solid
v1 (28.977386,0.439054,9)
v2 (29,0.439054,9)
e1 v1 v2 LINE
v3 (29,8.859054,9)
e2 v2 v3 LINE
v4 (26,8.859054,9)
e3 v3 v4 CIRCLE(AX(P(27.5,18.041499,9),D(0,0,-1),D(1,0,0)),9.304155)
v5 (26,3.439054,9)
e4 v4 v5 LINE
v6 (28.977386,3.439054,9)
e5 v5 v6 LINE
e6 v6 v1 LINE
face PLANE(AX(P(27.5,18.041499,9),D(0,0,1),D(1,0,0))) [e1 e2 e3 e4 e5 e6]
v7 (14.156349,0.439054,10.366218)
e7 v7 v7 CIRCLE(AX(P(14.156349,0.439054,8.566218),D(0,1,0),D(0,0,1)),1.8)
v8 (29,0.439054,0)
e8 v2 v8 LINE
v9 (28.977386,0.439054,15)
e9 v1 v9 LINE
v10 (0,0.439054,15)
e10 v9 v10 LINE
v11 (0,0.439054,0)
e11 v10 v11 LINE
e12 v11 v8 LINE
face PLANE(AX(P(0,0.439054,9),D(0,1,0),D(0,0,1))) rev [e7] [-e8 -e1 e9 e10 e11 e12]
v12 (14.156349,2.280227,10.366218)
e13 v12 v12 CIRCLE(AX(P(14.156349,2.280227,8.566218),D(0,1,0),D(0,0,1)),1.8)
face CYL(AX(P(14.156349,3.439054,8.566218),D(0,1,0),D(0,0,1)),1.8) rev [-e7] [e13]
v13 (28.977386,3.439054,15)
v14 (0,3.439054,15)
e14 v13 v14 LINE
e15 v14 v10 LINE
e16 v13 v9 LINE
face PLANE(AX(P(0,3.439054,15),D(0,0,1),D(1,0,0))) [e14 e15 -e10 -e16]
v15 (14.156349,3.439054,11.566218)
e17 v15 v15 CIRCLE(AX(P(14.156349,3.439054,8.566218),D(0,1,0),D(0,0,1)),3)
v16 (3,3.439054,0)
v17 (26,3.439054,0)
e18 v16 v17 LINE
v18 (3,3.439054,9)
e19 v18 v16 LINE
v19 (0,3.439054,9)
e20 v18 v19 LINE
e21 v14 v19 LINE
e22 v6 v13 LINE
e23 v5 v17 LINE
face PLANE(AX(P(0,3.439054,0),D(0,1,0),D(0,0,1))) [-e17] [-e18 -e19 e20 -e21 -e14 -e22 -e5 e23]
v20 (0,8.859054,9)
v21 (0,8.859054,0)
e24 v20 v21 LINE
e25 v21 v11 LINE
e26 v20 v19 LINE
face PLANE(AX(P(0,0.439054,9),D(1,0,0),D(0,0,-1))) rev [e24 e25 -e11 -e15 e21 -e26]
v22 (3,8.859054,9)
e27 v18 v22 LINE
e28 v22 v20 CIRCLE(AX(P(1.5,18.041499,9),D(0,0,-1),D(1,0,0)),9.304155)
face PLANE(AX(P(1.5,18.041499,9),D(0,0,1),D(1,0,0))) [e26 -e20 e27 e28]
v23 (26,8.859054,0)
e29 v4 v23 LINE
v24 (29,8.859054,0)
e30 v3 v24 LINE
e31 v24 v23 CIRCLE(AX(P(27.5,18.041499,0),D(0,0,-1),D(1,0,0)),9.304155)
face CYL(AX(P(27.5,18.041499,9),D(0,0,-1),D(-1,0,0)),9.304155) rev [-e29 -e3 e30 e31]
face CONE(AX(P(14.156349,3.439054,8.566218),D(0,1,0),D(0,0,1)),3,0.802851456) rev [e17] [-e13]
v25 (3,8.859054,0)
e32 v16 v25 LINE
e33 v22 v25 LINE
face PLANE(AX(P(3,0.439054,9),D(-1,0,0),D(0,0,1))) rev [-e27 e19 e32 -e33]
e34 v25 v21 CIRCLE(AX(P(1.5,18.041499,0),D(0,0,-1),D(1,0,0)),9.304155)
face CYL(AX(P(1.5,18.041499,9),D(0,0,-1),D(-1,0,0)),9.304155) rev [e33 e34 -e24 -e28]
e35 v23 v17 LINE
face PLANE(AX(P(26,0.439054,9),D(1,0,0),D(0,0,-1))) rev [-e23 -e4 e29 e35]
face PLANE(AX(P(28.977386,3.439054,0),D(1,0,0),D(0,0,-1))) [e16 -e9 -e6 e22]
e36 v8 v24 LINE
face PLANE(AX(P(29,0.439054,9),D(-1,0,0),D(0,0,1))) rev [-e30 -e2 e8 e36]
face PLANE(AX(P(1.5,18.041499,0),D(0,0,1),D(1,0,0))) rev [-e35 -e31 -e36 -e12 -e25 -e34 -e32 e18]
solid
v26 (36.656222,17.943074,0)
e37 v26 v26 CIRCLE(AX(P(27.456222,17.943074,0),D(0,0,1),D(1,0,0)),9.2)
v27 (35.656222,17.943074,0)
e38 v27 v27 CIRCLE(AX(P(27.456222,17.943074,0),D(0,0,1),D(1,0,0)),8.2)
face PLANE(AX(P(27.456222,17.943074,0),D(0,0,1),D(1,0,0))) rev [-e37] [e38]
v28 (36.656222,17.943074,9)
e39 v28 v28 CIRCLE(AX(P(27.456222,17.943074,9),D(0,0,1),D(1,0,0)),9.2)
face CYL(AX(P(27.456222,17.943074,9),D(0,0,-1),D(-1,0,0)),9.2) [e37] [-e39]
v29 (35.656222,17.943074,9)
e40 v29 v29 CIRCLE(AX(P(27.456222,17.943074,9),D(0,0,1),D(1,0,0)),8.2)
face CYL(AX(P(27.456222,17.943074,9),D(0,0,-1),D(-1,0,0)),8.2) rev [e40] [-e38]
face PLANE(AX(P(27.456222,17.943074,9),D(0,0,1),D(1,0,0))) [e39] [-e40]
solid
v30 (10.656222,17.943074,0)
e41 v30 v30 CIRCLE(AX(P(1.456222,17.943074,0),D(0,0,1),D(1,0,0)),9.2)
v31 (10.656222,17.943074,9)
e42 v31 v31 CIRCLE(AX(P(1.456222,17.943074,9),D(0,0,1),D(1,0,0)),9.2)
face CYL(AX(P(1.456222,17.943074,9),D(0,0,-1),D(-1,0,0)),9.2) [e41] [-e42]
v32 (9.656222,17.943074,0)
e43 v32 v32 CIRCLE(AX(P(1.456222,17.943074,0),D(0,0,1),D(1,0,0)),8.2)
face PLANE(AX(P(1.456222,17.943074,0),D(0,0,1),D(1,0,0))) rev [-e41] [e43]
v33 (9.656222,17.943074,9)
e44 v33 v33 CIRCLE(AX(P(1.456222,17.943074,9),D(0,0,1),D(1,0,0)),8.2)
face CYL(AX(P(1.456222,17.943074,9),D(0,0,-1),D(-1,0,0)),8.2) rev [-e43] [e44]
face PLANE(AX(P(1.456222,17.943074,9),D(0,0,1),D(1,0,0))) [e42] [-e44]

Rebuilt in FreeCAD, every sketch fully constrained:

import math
import FreeCAD as App
import Part
import Sketcher
Q = App.Units.Quantity


def add_polygon(sketch, points):
    """Adds a closed chain of lines whose ends are joined by coincident constraints."""
    first, n = sketch.GeometryCount, len(points)
    for a, b in zip(points, points[1:] + points[:1]):
        sketch.addGeometry(Part.LineSegment(App.Vector(*a, 0), App.Vector(*b, 0)), False)
    for i in range(n):
        sketch.addConstraint(Sketcher.Constraint("Coincident", first + i, 2, first + (i + 1) % n, 1))

doc = App.newDocument("Part")
body = doc.addObject("PartDesign::Body", "Body")

# Sketch on XY plane
sketch1 = body.newObject("Sketcher::SketchObject", "Sketch")
sketch1.AttachmentSupport = (doc.getObject("XY_Plane"), [""])
sketch1.MapMode = "FlatFace"
sketch1.addGeometry([
    Part.Circle(App.Vector(1.456222, 17.943074, 0), App.Vector(0, 0, 1), 9.2),
    Part.Circle(App.Vector(1.456222, 17.943074, 0), App.Vector(0, 0, 1), 8.2),
], False)
sketch1.addConstraint([
    Sketcher.Constraint("Coincident", 1, 3, 0, 3),
    Sketcher.Constraint("Diameter", 0, Q("18.4 mm")),
    Sketcher.Constraint("Diameter", 1, Q("16.4 mm")),
    Sketcher.Constraint("DistanceX", -1, 1, 0, 3, Q("1.456222 mm")),
    Sketcher.Constraint("DistanceY", -1, 1, 0, 3, Q("17.943074 mm")),
])
pad1 = body.newObject("PartDesign::Pad", "Pad")
pad1.Profile = sketch1
pad1.Length = 9
body2 = doc.addObject("PartDesign::Body", "Body001")

# Sketch on XY plane
sketch2 = body2.newObject("Sketcher::SketchObject", "Sketch001")
sketch2.AttachmentSupport = (doc.getObject("XY_Plane001"), [""])
sketch2.MapMode = "FlatFace"
sketch2.addGeometry([
    Part.Circle(App.Vector(27.456222, 17.943074, 0), App.Vector(0, 0, 1), 9.2),
    Part.Circle(App.Vector(27.456222, 17.943074, 0), App.Vector(0, 0, 1), 8.2),
], False)
sketch2.addConstraint([
    Sketcher.Constraint("Coincident", 1, 3, 0, 3),
    Sketcher.Constraint("Diameter", 0, Q("18.4 mm")),
    Sketcher.Constraint("Diameter", 1, Q("16.4 mm")),
    Sketcher.Constraint("DistanceX", -1, 1, 0, 3, Q("27.456222 mm")),
    Sketcher.Constraint("DistanceY", -1, 1, 0, 3, Q("17.943074 mm")),
])
pad2 = body2.newObject("PartDesign::Pad", "Pad001")
pad2.Profile = sketch2
pad2.Length = 9
body3 = doc.addObject("PartDesign::Body", "Body002")

# Sketch on XY plane
sketch3 = body3.newObject("Sketcher::SketchObject", "Sketch002")
sketch3.AttachmentSupport = (doc.getObject("XY_Plane002"), [""])
sketch3.MapMode = "FlatFace"
sketch3.addGeometry([
    Part.LineSegment(App.Vector(0, 0.439054, 0), App.Vector(3, 0.439054, 0)),
    Part.LineSegment(App.Vector(3, 0.439054, 0), App.Vector(3, 8.859054, 0)),
    Part.ArcOfCircle(Part.Circle(App.Vector(1.5, 18.041499, 0), App.Vector(0, 0, 1), 9.304155), math.radians(-99.277618), math.radians(-80.722382)),
    Part.LineSegment(App.Vector(0, 8.859054, 0), App.Vector(0, 0.439054, 0)),
], False)
sketch3.addConstraint([
    Sketcher.Constraint("Coincident", 0, 2, 1, 1),
    Sketcher.Constraint("Coincident", 1, 2, 2, 2),
    Sketcher.Constraint("Coincident", 2, 1, 3, 1),
    Sketcher.Constraint("Coincident", 3, 2, 0, 1),
    Sketcher.Constraint("Horizontal", 0),
    Sketcher.Constraint("Vertical", 1),
    Sketcher.Constraint("Vertical", 3),
    Sketcher.Constraint("PointOnObject", 2, 1, -2),
    Sketcher.Constraint("Horizontal", 1, 2, 2, 1),
    Sketcher.Constraint("DistanceX", 0, 1, 0, 2, Q("3 mm")),
    Sketcher.Constraint("DistanceY", 1, 1, 1, 2, Q("8.42 mm")),
    Sketcher.Constraint("Radius", 2, Q("9.304155 mm")),
    Sketcher.Constraint("DistanceY", -1, 1, 2, 3, Q("18.041499 mm")),
])
pad3 = body3.newObject("PartDesign::Pad", "Pad002")
pad3.Profile = sketch3
pad3.Length = 9
body4 = doc.addObject("PartDesign::Body", "Body003")

# Sketch on XY plane
sketch4 = body4.newObject("Sketcher::SketchObject", "Sketch003")
sketch4.AttachmentSupport = (doc.getObject("XY_Plane003"), [""])
sketch4.MapMode = "FlatFace"
sketch4.addGeometry([
    Part.LineSegment(App.Vector(26, 0.439054, 0), App.Vector(29, 0.439054, 0)),
    Part.LineSegment(App.Vector(29, 0.439054, 0), App.Vector(29, 8.859054, 0)),
    Part.ArcOfCircle(Part.Circle(App.Vector(27.5, 18.041499, 0), App.Vector(0, 0, 1), 9.304155), math.radians(-99.277618), math.radians(-80.722382)),
    Part.LineSegment(App.Vector(26, 8.859054, 0), App.Vector(26, 0.439054, 0)),
], False)
sketch4.addConstraint([
    Sketcher.Constraint("Coincident", 0, 2, 1, 1),
    Sketcher.Constraint("Coincident", 1, 2, 2, 2),
    Sketcher.Constraint("Coincident", 2, 1, 3, 1),
    Sketcher.Constraint("Coincident", 3, 2, 0, 1),
    Sketcher.Constraint("Horizontal", 0),
    Sketcher.Constraint("Vertical", 1),
    Sketcher.Constraint("Vertical", 3),
    Sketcher.Constraint("Horizontal", 1, 2, 2, 1),
    Sketcher.Constraint("DistanceX", 0, 1, 0, 2, Q("3 mm")),
    Sketcher.Constraint("DistanceX", -1, 1, 0, 2, Q("29 mm")),
    Sketcher.Constraint("DistanceY", 1, 1, 1, 2, Q("8.42 mm")),
    Sketcher.Constraint("Radius", 2, Q("9.304155 mm")),
    Sketcher.Constraint("DistanceY", -1, 1, 2, 3, Q("18.041499 mm")),
])
pad4 = body4.newObject("PartDesign::Pad", "Pad003")
pad4.Profile = sketch4
pad4.Length = 9
body3.AllowCompound = True
doc.recompute()

boolean = body3.newObject("PartDesign::Boolean", "Boolean")
boolean.Type = "Fuse"
boolean.addObjects([body4])

# Sketch on XZ plane
sketch5 = body3.newObject("Sketcher::SketchObject", "Sketch004")
sketch5.AttachmentSupport = (doc.getObject("XZ_Plane002"), [""])
sketch5.MapMode = "FlatFace"
sketch5.AttachmentOffset = App.Placement(App.Vector(0, 0, -0.439054), App.Rotation())
add_polygon(sketch5, [(28.977386, 0), (28.977386, 15), (0, 15), (0, 0)])  # lines 0-3
sketch5.addConstraint([
    Sketcher.Constraint("Vertical", 0),
    Sketcher.Constraint("Horizontal", 1),
    Sketcher.Constraint("Vertical", 2),
    Sketcher.Constraint("Horizontal", 3),
    Sketcher.Constraint("Coincident", 2, 2, -1, 1),
    Sketcher.Constraint("DistanceY", 0, 1, 0, 2, Q("15 mm")),
    Sketcher.Constraint("DistanceX", 1, 2, 1, 1, Q("28.977386 mm")),
])
pad5 = body3.newObject("PartDesign::Pad", "Pad004")
pad5.Profile = sketch5
pad5.Length = 3
pad5.Reversed = True

# Sketch on YZ plane
sketch6 = body3.newObject("Sketcher::SketchObject", "Sketch005")
sketch6.AttachmentSupport = (doc.getObject("YZ_Plane002"), [""])
sketch6.MapMode = "FlatFace"
sketch6.AttachmentOffset = App.Placement(App.Vector(0, 0, 14.156349), App.Rotation())
add_polygon(sketch6, [(-7.642495, 8.566218), (3.439054, 8.566218), (3.439054, 11.566218), (2.280227, 10.366218), (-6.560946, 10.366218)])  # lines 0-4
sketch6.addGeometry(Part.LineSegment(App.Vector(3.439054, 8.566218, 0), App.Vector(-7.642495, 8.566218, 0)), True)  # axis
sketch6.addConstraint([
    Sketcher.Constraint("Horizontal", 0),
    Sketcher.Constraint("Vertical", 1),
    Sketcher.Constraint("Horizontal", 3),
    Sketcher.Constraint("Horizontal", 5),
    Sketcher.Constraint("Coincident", 5, 1, 0, 2),
    Sketcher.Constraint("Equal", 0, 5),
    Sketcher.Constraint("DistanceY", 1, 1, 1, 2, Q("3 mm")),
    Sketcher.Constraint("Angle", 2, Q("-134 deg")),
    Sketcher.Constraint("Angle", 4, Q("-121 deg")),
    Sketcher.Constraint("DistanceX", 3, 2, 1, 2, Q("10 mm")),
    Sketcher.Constraint("DistanceY", 2, 2, 1, 2, Q("1.2 mm")),
    Sketcher.Constraint("DistanceY", -1, 1, 0, 2, Q("8.566218 mm")),
    Sketcher.Constraint("DistanceX", -1, 1, 0, 2, Q("3.439054 mm")),
])
groove = body3.newObject("PartDesign::Groove", "Groove")
groove.Profile = sketch6
groove.ReferenceAxis = (sketch6, ["Axis0"])
groove.Angle = 360

doc.recompute()
